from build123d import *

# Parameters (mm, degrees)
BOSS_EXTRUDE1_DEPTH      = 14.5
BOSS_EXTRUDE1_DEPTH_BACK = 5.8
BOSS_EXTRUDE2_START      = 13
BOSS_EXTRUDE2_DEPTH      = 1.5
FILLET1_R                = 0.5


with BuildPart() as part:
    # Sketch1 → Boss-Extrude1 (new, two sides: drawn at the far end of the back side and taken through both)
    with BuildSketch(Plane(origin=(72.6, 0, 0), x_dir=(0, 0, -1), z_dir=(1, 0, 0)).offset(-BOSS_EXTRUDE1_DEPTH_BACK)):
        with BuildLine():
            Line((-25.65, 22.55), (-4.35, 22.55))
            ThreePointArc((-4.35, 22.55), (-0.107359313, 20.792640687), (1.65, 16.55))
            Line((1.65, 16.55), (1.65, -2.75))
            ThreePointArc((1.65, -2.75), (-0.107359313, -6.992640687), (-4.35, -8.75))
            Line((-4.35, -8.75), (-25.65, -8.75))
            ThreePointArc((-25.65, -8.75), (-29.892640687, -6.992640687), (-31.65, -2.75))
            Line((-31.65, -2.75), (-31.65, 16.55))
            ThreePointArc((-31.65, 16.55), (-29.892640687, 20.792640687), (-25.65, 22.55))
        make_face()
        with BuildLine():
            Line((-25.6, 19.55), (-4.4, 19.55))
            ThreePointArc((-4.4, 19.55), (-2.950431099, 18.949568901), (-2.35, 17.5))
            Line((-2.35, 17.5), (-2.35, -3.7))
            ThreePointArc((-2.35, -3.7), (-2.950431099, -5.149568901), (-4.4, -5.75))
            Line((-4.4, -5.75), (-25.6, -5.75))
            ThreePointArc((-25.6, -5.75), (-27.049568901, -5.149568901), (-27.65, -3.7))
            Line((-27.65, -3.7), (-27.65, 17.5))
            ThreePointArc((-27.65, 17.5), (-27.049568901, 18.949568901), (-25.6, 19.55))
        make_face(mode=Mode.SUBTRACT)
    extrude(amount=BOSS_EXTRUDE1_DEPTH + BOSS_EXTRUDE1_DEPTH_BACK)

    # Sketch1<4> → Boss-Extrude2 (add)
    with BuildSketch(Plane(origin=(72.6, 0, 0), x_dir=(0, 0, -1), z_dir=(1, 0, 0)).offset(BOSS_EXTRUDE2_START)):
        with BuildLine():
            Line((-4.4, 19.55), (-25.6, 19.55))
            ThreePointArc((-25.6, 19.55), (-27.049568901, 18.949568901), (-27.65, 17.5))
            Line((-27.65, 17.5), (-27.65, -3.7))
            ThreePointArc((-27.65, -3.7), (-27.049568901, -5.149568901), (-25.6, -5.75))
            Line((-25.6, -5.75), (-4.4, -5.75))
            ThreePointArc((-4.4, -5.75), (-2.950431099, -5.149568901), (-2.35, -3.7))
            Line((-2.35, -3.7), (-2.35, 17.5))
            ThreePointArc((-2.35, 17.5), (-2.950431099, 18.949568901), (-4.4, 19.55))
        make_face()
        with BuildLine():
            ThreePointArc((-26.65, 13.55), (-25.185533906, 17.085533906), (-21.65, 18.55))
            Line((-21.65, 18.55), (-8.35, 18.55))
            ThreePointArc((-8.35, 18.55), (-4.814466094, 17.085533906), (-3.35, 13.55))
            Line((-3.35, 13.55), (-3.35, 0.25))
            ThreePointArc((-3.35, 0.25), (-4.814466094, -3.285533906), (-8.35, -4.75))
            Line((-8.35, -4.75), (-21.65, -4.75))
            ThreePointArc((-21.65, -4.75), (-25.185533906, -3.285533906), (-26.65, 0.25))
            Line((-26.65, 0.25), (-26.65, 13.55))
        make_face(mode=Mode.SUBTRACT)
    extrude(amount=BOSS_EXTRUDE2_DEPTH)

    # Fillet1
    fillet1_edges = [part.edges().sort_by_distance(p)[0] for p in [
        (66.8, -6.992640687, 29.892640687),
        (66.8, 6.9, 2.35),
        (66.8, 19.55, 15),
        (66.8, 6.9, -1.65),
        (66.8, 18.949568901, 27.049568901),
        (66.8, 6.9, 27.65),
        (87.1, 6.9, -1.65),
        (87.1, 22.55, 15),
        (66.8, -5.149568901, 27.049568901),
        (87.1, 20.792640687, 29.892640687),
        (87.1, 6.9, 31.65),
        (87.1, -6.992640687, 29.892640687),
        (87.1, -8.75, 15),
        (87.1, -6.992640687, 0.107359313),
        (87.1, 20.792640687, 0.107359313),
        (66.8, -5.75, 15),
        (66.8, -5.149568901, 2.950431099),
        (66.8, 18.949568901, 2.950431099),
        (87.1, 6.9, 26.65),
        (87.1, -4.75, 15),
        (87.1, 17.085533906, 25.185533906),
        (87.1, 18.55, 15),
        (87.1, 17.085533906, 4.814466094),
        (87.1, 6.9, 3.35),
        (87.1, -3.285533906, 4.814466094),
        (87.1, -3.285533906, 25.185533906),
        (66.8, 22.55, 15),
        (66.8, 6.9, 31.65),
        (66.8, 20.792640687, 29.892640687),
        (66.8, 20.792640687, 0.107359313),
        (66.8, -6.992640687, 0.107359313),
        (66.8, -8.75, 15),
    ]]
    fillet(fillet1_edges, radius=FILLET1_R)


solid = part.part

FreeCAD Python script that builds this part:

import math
import FreeCAD as App
import Part
import Sketcher


def edges_at(feature, points):
    """Names of the edges that pass closest to the given points."""
    edges = feature.Shape.Edges
    near = lambda p: min(range(len(edges)), key=lambda i: edges[i].distToShape(Part.Vertex(*p))[0])
    return sorted({f"Edge{near(p) + 1}" for p in points})

doc = App.newDocument("Part")
body = doc.addObject("PartDesign::Body", "Body")

# Sketch on YZ plane
sketch1 = body.newObject("Sketcher::SketchObject", "Sketch")
sketch1.AttachmentSupport = (doc.getObject("YZ_Plane"), [""])
sketch1.MapMode = "FlatFace"
sketch1.AttachmentOffset = App.Placement(App.Vector(0, 0, 72.6), App.Rotation())
sketch1.addGeometry([
    Part.LineSegment(App.Vector(22.6, 4.3, 0), App.Vector(22.6, 25.6, 0)),  # 0
    Part.ArcOfCircle(Part.Circle(App.Vector(16.6, 25.6, 0), App.Vector(0, 0, 1), 6), math.radians(0), math.radians(90)),  # 1
    Part.LineSegment(App.Vector(16.6, 31.6, 0), App.Vector(-2.8, 31.6, 0)),  # 2
    Part.ArcOfCircle(Part.Circle(App.Vector(-2.8, 25.6, 0), App.Vector(0, 0, 1), 6), math.radians(90), math.radians(180)),  # 3
    Part.LineSegment(App.Vector(-8.8, 25.6, 0), App.Vector(-8.8, 4.3, 0)),  # 4
    Part.ArcOfCircle(Part.Circle(App.Vector(-2.8, 4.3, 0), App.Vector(0, 0, 1), 6), math.radians(180), math.radians(270)),  # 5
    Part.LineSegment(App.Vector(-2.8, -1.6, 0), App.Vector(16.6, -1.6, 0)),  # 6
    Part.ArcOfCircle(Part.Circle(App.Vector(16.6, 4.3, 0), App.Vector(0, 0, 1), 6), math.radians(-90), math.radians(0)),  # 7
    Part.LineSegment(App.Vector(19.6, 25.6, 0), App.Vector(19.6, 4.4, 0)),  # 8
    Part.ArcOfCircle(Part.Circle(App.Vector(17.5, 4.4, 0), App.Vector(0, 0, 1), 2.1), math.radians(-90), math.radians(0)),  # 9
    Part.LineSegment(App.Vector(17.5, 2.4, 0), App.Vector(-3.7, 2.4, 0)),  # 10
    Part.ArcOfCircle(Part.Circle(App.Vector(-3.7, 4.4, 0), App.Vector(0, 0, 1), 2.1), math.radians(-180), math.radians(-90)),  # 11
    Part.LineSegment(App.Vector(-5.8, 4.4, 0), App.Vector(-5.8, 25.6, 0)),  # 12
    Part.ArcOfCircle(Part.Circle(App.Vector(-3.7, 25.6, 0), App.Vector(0, 0, 1), 2.1), math.radians(90), math.radians(180)),  # 13
    Part.LineSegment(App.Vector(-3.7, 27.6, 0), App.Vector(17.5, 27.6, 0)),  # 14
    Part.ArcOfCircle(Part.Circle(App.Vector(17.5, 25.6, 0), App.Vector(0, 0, 1), 2.1), math.radians(0), math.radians(90)),  # 15
], False)
sketch1.addConstraint([
    Sketcher.Constraint("Tangent", 0, 2, 1, 1),
    Sketcher.Constraint("Tangent", 1, 2, 2, 1),
    Sketcher.Constraint("Tangent", 2, 2, 3, 1),
    Sketcher.Constraint("Tangent", 3, 2, 4, 1),
    Sketcher.Constraint("Tangent", 4, 2, 5, 1),
    Sketcher.Constraint("Tangent", 5, 2, 6, 1),
    Sketcher.Constraint("Tangent", 6, 2, 7, 1),
    Sketcher.Constraint("Tangent", 7, 2, 0, 1),
    Sketcher.Constraint("Tangent", 8, 2, 9, 2),
    Sketcher.Constraint("Tangent", 9, 1, 10, 1),
    Sketcher.Constraint("Tangent", 10, 2, 11, 2),
    Sketcher.Constraint("Tangent", 11, 1, 12, 1),
    Sketcher.Constraint("Tangent", 12, 2, 13, 2),
    Sketcher.Constraint("Tangent", 13, 1, 14, 1),
    Sketcher.Constraint("Tangent", 14, 2, 15, 2),
    Sketcher.Constraint("Tangent", 15, 1, 8, 1),
    Sketcher.Constraint("Vertical", 0),
    Sketcher.Constraint("Horizontal", 2),
    Sketcher.Constraint("Vertical", 4),
    Sketcher.Constraint("Horizontal", 6),
    Sketcher.Constraint("Vertical", 8),
    Sketcher.Constraint("Horizontal", 10),
    Sketcher.Constraint("Vertical", 12),
    Sketcher.Constraint("Horizontal", 14),
    Sketcher.Constraint("Equal", 1, 3),
    Sketcher.Constraint("Equal", 3, 5),
    Sketcher.Constraint("Equal", 5, 7),
    Sketcher.Constraint("Equal", 9, 11),
    Sketcher.Constraint("Equal", 11, 13),
    Sketcher.Constraint("Equal", 13, 15),
    Sketcher.Constraint("Equal", 14, 8),
    Sketcher.Constraint("Radius", 1, 6.0),
    Sketcher.Constraint("Radius", 9, 2.05),
    Sketcher.Constraint("DistanceX", 2, 2, 2, 1, 19.3),
    Sketcher.Constraint("DistanceX", 10, 2, 10, 1, 21.2),
    Sketcher.Constraint("DistanceY", 0, 1, 0, 2, 21.3),
    Sketcher.Constraint("DistanceX", 7, 3, 8, 2, 3.0),
    Sketcher.Constraint("DistanceY", 9, 1, 7, 3, 2.0),
    Sketcher.Constraint("DistanceX", -1, 1, 9, 3, 17.5),
    Sketcher.Constraint("DistanceY", -1, 1, 9, 3, 4.4),
])
pad1 = body.newObject("PartDesign::Pad", "Pad")
pad1.Profile = sketch1
pad1.Type = "TwoLengths"
pad1.Length = 14.5
pad1.Length2 = 5.8

# Sketch on YZ plane
sketch2 = body.newObject("Sketcher::SketchObject", "Sketch001")
sketch2.AttachmentSupport = (doc.getObject("YZ_Plane"), [""])
sketch2.MapMode = "FlatFace"
sketch2.AttachmentOffset = App.Placement(App.Vector(0, 0, 85.6), App.Rotation())
sketch2.addGeometry([
    Part.LineSegment(App.Vector(19.6, 4.4, 0), App.Vector(19.6, 25.6, 0)),  # 0
    Part.ArcOfCircle(Part.Circle(App.Vector(17.5, 25.6, 0), App.Vector(0, 0, 1), 2.1), math.radians(0), math.radians(90)),  # 1
    Part.LineSegment(App.Vector(17.5, 27.6, 0), App.Vector(-3.7, 27.6, 0)),  # 2
    Part.ArcOfCircle(Part.Circle(App.Vector(-3.7, 25.6, 0), App.Vector(0, 0, 1), 2.1), math.radians(90), math.radians(180)),  # 3
    Part.LineSegment(App.Vector(-5.8, 25.6, 0), App.Vector(-5.8, 4.4, 0)),  # 4
    Part.ArcOfCircle(Part.Circle(App.Vector(-3.7, 4.4, 0), App.Vector(0, 0, 1), 2.1), math.radians(-180), math.radians(-90)),  # 5
    Part.LineSegment(App.Vector(-3.7, 2.4, 0), App.Vector(17.5, 2.4, 0)),  # 6
    Part.ArcOfCircle(Part.Circle(App.Vector(17.5, 4.4, 0), App.Vector(0, 0, 1), 2.1), math.radians(-90), math.radians(0)),  # 7
    Part.LineSegment(App.Vector(0.2, 26.6, 0), App.Vector(13.6, 26.6, 0)),  # 8
    Part.ArcOfCircle(Part.Circle(App.Vector(13.6, 21.6, 0), App.Vector(0, 0, 1), 5), math.radians(0), math.radians(90)),  # 9
    Part.LineSegment(App.Vector(18.6, 21.6, 0), App.Vector(18.6, 8.3, 0)),  # 10
    Part.ArcOfCircle(Part.Circle(App.Vector(13.6, 8.3, 0), App.Vector(0, 0, 1), 5), math.radians(-90), math.radians(0)),  # 11
    Part.LineSegment(App.Vector(13.6, 3.4, 0), App.Vector(0.2, 3.4, 0)),  # 12
    Part.ArcOfCircle(Part.Circle(App.Vector(0.2, 8.3, 0), App.Vector(0, 0, 1), 5), math.radians(180), math.radians(270)),  # 13
    Part.LineSegment(App.Vector(-4.8, 8.3, 0), App.Vector(-4.8, 21.6, 0)),  # 14
    Part.ArcOfCircle(Part.Circle(App.Vector(0.2, 21.6, 0), App.Vector(0, 0, 1), 5), math.radians(90), math.radians(180)),  # 15
], False)
sketch2.addConstraint([
    Sketcher.Constraint("Tangent", 0, 2, 1, 1),
    Sketcher.Constraint("Tangent", 1, 2, 2, 1),
    Sketcher.Constraint("Tangent", 2, 2, 3, 1),
    Sketcher.Constraint("Tangent", 3, 2, 4, 1),
    Sketcher.Constraint("Tangent", 4, 2, 5, 1),
    Sketcher.Constraint("Tangent", 5, 2, 6, 1),
    Sketcher.Constraint("Tangent", 6, 2, 7, 1),
    Sketcher.Constraint("Tangent", 7, 2, 0, 1),
    Sketcher.Constraint("Tangent", 8, 2, 9, 2),
    Sketcher.Constraint("Tangent", 9, 1, 10, 1),
    Sketcher.Constraint("Tangent", 10, 2, 11, 2),
    Sketcher.Constraint("Tangent", 11, 1, 12, 1),
    Sketcher.Constraint("Tangent", 12, 2, 13, 2),
    Sketcher.Constraint("Tangent", 13, 1, 14, 1),
    Sketcher.Constraint("Tangent", 14, 2, 15, 2),
    Sketcher.Constraint("Tangent", 15, 1, 8, 1),
    Sketcher.Constraint("Vertical", 0),
    Sketcher.Constraint("Horizontal", 2),
    Sketcher.Constraint("Vertical", 4),
    Sketcher.Constraint("Horizontal", 6),
    Sketcher.Constraint("Horizontal", 8),
    Sketcher.Constraint("Vertical", 10),
    Sketcher.Constraint("Horizontal", 12),
    Sketcher.Constraint("Vertical", 14),
    Sketcher.Constraint("Equal", 1, 3),
    Sketcher.Constraint("Equal", 3, 5),
    Sketcher.Constraint("Equal", 5, 7),
    Sketcher.Constraint("Equal", 9, 11),
    Sketcher.Constraint("Equal", 11, 13),
    Sketcher.Constraint("Equal", 13, 15),
    Sketcher.Constraint("Equal", 6, 0),
    Sketcher.Constraint("Equal", 12, 10),
    Sketcher.Constraint("Radius", 9, 5.0),
    Sketcher.Constraint("Radius", 1, 2.05),
    Sketcher.Constraint("DistanceX", 2, 2, 2, 1, 21.2),
    Sketcher.Constraint("DistanceX", 8, 1, 8, 2, 13.3),
    Sketcher.Constraint("DistanceX", 9, 3, 0, 2, 6.0),
    Sketcher.Constraint("DistanceY", 9, 3, 1, 2, 6.0),
    Sketcher.Constraint("DistanceX", -1, 1, 1, 3, 17.5),
    Sketcher.Constraint("DistanceY", -1, 1, 1, 3, 25.6),
])
pad2 = body.newObject("PartDesign::Pad", "Pad001")
pad2.Profile = sketch2
pad2.Length = 1.5
doc.recompute()

fillet = body.newObject("PartDesign::Fillet", "Fillet")
fillet.Base = (pad2, edges_at(pad2, [
    (66.8, -6.993, 29.893),
    (66.8, 6.9, 2.35),
    (66.8, 19.55, 15),
    (66.8, 6.9, -1.65),
    (66.8, 18.95, 27.05),
    (66.8, 6.9, 27.65),
    (87.1, 6.9, -1.65),
    (87.1, 22.55, 15),
    (66.8, -5.15, 27.05),
    (87.1, 20.793, 29.893),
    (87.1, 6.9, 31.65),
    (87.1, -6.993, 29.893),
    (87.1, -8.75, 15),
    (87.1, -6.993, 0.107),
    (87.1, 20.793, 0.107),
    (66.8, -5.75, 15),
    (66.8, -5.15, 2.95),
    (66.8, 18.95, 2.95),
    (87.1, 6.9, 26.65),
    (87.1, -4.75, 15),
    (87.1, 17.086, 25.186),
    (87.1, 18.55, 15),
    (87.1, 17.086, 4.814),
    (87.1, 6.9, 3.35),
    (87.1, -3.286, 4.814),
    (87.1, -3.286, 25.186),
    (66.8, 22.55, 15),
    (66.8, 6.9, 31.65),
    (66.8, 20.793, 29.893),
    (66.8, 20.793, 0.107),
    (66.8, -6.993, 0.107),
    (66.8, -8.75, 15),
]))
fillet.Radius = 0.5

doc.recompute()
